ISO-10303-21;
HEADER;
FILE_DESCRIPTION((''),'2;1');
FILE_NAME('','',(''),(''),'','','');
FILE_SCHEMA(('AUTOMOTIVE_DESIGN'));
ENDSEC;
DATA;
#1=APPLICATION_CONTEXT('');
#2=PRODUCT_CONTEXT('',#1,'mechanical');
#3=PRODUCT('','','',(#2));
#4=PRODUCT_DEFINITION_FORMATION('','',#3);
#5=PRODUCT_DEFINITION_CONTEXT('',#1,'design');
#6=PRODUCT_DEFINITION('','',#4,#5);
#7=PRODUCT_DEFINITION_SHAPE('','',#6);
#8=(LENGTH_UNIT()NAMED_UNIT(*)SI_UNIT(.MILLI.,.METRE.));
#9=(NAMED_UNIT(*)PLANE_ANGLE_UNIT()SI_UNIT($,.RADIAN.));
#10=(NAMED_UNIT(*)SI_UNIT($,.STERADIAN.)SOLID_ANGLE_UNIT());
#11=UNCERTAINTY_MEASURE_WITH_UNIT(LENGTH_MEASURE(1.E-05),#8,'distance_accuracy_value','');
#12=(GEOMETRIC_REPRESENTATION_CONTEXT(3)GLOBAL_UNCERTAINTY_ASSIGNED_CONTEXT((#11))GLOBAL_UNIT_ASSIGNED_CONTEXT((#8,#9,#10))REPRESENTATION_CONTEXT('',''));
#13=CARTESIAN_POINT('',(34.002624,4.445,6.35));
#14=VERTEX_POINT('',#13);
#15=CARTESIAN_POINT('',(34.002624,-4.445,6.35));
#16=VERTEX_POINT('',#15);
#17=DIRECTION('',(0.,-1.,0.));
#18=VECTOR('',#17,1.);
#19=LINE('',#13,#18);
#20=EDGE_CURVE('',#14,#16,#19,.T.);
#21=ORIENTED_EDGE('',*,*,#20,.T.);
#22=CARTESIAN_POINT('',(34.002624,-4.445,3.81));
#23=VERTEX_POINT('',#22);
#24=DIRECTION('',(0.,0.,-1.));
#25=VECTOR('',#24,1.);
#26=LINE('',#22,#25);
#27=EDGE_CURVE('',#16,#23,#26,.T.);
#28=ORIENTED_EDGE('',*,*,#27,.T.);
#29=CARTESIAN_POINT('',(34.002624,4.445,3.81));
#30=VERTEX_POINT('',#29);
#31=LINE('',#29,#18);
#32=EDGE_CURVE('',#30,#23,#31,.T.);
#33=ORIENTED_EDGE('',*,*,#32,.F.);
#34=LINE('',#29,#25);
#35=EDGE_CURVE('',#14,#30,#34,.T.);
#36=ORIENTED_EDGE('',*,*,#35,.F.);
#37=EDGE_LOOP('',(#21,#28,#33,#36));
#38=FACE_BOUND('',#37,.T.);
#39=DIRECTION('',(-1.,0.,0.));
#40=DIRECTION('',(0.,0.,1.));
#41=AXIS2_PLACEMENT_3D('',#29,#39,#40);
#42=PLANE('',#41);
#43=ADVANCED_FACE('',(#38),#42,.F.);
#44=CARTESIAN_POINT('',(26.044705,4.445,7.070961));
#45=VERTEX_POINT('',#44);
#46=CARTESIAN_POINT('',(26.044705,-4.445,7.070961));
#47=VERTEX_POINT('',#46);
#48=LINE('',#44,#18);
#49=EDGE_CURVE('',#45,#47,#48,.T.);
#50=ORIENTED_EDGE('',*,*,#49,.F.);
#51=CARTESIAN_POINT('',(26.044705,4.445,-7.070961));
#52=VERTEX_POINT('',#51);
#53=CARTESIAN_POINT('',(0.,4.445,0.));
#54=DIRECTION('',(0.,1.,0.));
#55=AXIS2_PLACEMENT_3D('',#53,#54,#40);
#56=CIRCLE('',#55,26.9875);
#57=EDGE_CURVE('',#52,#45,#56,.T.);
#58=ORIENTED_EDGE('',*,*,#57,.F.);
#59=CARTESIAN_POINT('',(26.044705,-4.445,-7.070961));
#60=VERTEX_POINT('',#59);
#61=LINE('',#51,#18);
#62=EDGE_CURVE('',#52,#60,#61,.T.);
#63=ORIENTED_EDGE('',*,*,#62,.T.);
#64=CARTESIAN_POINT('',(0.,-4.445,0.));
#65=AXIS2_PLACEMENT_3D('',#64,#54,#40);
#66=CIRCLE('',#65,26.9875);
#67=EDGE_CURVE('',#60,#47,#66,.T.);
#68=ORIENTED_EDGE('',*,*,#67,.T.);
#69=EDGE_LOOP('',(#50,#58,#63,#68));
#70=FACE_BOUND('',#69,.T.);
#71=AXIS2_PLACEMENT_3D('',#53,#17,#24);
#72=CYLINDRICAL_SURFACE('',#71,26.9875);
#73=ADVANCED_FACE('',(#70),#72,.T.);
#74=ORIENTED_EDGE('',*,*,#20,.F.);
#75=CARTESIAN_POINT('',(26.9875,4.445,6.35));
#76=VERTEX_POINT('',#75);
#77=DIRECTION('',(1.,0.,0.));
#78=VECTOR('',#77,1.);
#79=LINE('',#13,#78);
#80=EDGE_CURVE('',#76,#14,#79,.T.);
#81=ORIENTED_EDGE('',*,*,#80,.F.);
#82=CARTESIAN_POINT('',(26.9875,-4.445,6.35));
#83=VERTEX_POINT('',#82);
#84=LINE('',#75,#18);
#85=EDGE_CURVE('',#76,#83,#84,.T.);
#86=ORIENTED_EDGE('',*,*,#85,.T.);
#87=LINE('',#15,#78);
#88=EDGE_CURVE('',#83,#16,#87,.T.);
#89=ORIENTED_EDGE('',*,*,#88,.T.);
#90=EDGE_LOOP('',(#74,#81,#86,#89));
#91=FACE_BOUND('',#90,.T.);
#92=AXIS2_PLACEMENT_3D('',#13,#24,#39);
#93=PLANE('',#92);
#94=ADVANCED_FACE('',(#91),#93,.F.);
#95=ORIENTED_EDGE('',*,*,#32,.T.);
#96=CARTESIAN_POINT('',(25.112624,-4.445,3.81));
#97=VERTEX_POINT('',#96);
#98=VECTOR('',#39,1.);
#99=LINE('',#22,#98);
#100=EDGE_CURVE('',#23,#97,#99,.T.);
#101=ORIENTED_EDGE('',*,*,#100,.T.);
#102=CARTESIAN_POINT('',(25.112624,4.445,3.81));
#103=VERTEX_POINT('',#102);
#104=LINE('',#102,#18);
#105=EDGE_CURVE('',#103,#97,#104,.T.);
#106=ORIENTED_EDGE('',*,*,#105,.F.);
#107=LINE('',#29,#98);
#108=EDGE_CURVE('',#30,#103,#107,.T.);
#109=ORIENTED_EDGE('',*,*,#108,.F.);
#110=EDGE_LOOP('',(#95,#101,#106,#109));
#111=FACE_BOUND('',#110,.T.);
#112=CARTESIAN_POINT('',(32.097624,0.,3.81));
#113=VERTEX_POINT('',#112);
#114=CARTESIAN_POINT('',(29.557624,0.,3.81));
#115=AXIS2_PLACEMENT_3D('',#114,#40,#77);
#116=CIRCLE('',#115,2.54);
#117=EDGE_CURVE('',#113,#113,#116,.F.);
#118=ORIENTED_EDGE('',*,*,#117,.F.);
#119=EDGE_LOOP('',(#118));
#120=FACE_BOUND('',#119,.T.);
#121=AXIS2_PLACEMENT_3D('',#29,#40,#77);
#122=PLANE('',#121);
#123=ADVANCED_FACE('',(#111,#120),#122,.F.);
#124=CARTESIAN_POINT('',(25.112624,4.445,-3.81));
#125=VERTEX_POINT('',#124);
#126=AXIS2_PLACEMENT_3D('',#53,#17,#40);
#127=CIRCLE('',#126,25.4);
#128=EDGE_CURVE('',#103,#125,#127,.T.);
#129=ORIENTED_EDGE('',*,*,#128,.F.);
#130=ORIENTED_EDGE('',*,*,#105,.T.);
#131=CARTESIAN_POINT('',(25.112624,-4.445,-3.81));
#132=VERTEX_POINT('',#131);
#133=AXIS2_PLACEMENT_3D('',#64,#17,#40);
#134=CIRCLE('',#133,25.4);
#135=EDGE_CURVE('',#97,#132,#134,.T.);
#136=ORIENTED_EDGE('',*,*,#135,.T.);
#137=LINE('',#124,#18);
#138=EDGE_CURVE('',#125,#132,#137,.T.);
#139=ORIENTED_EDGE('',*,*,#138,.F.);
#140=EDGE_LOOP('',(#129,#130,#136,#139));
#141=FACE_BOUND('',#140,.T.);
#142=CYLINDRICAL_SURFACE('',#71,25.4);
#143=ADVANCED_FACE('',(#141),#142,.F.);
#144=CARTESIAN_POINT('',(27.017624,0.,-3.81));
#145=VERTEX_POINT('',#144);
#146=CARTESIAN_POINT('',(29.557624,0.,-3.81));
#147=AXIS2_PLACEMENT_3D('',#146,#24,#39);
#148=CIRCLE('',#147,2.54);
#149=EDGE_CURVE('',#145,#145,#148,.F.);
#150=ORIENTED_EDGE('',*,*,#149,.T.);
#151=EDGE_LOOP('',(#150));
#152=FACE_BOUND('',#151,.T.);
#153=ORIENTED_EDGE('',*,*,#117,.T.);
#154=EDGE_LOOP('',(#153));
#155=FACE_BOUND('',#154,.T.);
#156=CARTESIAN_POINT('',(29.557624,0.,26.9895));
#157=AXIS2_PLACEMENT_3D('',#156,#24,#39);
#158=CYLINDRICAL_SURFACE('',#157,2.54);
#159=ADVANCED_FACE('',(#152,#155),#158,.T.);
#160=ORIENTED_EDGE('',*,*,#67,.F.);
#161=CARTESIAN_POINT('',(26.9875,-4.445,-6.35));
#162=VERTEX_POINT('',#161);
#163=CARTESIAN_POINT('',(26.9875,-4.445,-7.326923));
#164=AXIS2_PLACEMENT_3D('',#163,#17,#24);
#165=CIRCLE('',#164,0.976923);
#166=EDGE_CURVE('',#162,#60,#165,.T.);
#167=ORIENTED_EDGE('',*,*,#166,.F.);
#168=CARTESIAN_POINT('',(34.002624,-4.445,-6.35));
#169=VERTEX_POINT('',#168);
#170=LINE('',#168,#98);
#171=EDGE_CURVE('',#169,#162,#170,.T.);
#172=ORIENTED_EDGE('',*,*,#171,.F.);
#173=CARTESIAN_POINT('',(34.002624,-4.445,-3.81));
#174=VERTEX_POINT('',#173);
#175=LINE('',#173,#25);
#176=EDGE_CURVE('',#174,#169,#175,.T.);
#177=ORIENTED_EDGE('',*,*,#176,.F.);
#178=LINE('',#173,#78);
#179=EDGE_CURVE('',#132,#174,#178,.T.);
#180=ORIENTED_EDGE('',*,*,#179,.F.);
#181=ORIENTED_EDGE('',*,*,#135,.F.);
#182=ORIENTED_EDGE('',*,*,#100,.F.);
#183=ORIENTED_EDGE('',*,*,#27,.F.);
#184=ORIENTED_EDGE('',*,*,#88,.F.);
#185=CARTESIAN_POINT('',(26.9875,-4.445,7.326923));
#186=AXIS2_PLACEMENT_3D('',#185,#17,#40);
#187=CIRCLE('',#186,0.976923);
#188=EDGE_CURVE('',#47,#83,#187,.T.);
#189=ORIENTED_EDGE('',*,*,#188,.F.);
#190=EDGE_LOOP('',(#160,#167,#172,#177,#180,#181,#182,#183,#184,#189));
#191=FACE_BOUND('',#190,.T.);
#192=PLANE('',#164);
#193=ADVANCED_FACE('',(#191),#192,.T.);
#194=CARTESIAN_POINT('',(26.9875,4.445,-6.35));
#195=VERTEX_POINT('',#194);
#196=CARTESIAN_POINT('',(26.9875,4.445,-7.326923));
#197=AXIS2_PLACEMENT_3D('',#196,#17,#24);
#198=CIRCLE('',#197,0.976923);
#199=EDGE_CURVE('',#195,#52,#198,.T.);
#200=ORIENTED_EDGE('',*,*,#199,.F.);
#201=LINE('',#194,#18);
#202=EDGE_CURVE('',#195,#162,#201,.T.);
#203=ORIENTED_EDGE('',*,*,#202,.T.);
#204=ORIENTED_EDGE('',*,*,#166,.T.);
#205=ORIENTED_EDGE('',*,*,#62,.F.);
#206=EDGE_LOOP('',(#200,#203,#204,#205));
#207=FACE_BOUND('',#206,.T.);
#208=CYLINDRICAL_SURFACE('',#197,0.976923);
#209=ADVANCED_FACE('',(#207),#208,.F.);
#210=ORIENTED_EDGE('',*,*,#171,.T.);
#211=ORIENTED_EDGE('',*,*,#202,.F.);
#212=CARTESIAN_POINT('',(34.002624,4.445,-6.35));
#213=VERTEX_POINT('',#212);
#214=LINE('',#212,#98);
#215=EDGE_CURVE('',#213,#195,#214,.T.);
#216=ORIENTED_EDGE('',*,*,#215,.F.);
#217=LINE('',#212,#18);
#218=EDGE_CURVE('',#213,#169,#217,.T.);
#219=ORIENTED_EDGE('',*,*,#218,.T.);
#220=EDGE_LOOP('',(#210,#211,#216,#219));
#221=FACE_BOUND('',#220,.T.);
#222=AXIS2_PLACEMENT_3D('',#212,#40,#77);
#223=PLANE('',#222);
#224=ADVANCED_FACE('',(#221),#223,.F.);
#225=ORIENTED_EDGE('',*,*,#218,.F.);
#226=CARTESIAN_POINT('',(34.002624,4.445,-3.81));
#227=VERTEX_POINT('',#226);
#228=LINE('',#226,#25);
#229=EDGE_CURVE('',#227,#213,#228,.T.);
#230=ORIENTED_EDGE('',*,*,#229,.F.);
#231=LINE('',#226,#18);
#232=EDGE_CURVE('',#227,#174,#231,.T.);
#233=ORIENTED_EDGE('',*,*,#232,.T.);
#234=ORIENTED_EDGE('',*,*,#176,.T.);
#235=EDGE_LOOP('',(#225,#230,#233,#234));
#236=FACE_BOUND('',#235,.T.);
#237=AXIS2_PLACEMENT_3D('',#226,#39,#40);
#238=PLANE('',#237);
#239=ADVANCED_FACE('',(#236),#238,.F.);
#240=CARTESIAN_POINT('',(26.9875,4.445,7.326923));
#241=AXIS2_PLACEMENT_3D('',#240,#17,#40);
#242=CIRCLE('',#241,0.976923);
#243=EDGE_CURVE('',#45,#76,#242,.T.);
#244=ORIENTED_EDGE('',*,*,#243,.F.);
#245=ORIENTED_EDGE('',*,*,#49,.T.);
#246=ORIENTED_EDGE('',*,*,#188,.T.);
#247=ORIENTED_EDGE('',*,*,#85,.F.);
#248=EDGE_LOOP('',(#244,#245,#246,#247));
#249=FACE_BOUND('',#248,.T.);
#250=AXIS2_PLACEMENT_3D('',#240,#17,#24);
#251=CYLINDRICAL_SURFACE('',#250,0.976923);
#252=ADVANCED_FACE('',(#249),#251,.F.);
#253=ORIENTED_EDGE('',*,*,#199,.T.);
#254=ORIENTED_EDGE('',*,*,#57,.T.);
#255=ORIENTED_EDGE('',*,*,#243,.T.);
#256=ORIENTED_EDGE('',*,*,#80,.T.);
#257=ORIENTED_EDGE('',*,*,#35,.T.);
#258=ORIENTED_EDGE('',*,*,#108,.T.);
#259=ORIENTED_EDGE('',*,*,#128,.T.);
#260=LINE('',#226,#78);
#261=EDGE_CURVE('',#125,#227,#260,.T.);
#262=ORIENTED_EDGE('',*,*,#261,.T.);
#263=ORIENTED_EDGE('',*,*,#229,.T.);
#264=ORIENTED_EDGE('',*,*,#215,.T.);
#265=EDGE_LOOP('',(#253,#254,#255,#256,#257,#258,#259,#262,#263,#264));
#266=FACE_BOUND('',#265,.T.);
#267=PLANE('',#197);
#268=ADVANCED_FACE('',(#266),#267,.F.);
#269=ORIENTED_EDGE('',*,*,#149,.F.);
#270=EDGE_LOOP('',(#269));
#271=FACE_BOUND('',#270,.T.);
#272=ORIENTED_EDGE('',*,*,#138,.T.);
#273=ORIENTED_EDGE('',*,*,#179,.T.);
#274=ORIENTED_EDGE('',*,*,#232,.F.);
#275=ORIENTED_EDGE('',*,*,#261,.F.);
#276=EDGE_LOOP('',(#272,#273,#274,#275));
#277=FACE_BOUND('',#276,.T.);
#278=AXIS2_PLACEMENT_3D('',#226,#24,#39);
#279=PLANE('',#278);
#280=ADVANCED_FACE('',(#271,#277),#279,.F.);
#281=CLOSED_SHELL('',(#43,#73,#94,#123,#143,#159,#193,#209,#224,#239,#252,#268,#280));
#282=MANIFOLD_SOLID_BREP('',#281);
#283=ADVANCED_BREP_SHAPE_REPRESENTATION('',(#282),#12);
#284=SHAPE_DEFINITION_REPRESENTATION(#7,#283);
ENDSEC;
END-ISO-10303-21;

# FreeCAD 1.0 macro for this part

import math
import FreeCAD as App
import Part
import Sketcher

V = App.Vector
Q = App.Units.Quantity

doc = App.newDocument("Part")
body = doc.addObject("PartDesign::Body", "Body")

# Sketch on XZ plane
sketch1 = doc.addObject("Sketcher::SketchObject", "Sketch")
body.addObject(sketch1)
sketch1.AttachmentSupport = (doc.XZ_Plane, [""])
sketch1.MapMode = "FlatFace"
sketch1.addGeometry(Part.LineSegment(V(25.1, -3.8, 0), V(34, -3.8, 0)), False)
sketch1.addGeometry(Part.LineSegment(V(34, -3.8, 0), V(34, -6.3, 0)), False)
sketch1.addGeometry(Part.LineSegment(V(34, -6.3, 0), V(27, -6.3, 0)), False)
sketch1.addGeometry(Part.ArcOfCircle(Part.Circle(V(27, -7.3, 0), V(0, 0, 1), 1), math.radians(90), math.radians(165)), False)
sketch1.addGeometry(Part.ArcOfCircle(Part.Circle(V(0, 0, 0), V(0, 0, 1), 27), math.radians(15), math.radians(345)), False)
sketch1.addGeometry(Part.ArcOfCircle(Part.Circle(V(27, 7.3, 0), V(0, 0, 1), 1), math.radians(-165), math.radians(-90)), False)
sketch1.addGeometry(Part.LineSegment(V(27, 6.3, 0), V(34, 6.3, 0)), False)
sketch1.addGeometry(Part.LineSegment(V(34, 6.3, 0), V(34, 3.8, 0)), False)
sketch1.addGeometry(Part.LineSegment(V(34, 3.8, 0), V(25.1, 3.8, 0)), False)
sketch1.addGeometry(Part.ArcOfCircle(Part.Circle(V(0, 0, 0), V(0, 0, 1), 25.4), math.radians(9), math.radians(351)), False)
sketch1.addConstraint(Sketcher.Constraint("Coincident", 0, 2, 1, 1))
sketch1.addConstraint(Sketcher.Constraint("Coincident", 1, 2, 2, 1))
sketch1.addConstraint(Sketcher.Constraint("Tangent", 2, 2, 3, 1))
sketch1.addConstraint(Sketcher.Constraint("Tangent", 3, 2, 4, 2))
sketch1.addConstraint(Sketcher.Constraint("Tangent", 4, 1, 5, 1))
sketch1.addConstraint(Sketcher.Constraint("Tangent", 5, 2, 6, 1))
sketch1.addConstraint(Sketcher.Constraint("Coincident", 6, 2, 7, 1))
sketch1.addConstraint(Sketcher.Constraint("Coincident", 7, 2, 8, 1))
sketch1.addConstraint(Sketcher.Constraint("Coincident", 8, 2, 9, 1))
sketch1.addConstraint(Sketcher.Constraint("Coincident", 9, 2, 0, 1))
sketch1.addConstraint(Sketcher.Constraint("Horizontal", 0))
sketch1.addConstraint(Sketcher.Constraint("Vertical", 1))
sketch1.addConstraint(Sketcher.Constraint("Horizontal", 2))
sketch1.addConstraint(Sketcher.Constraint("Horizontal", 6))
sketch1.addConstraint(Sketcher.Constraint("Vertical", 7))
sketch1.addConstraint(Sketcher.Constraint("Horizontal", 8))
sketch1.addConstraint(Sketcher.Constraint("Coincident", 4, 3, -1, 1))
sketch1.addConstraint(Sketcher.Constraint("Coincident", 9, 3, -1, 1))
sketch1.addConstraint(Sketcher.Constraint("Equal", 3, 5))
sketch1.addConstraint(Sketcher.Constraint("Symmetric", 1, 2, 6, 2, -1))
sketch1.addConstraint(Sketcher.Constraint("Vertical", 8, 2, 9, 2))
sketch1.addConstraint(Sketcher.Constraint("Radius", 9, Q("1 in")))
sketch1.addConstraint(Sketcher.Constraint("DistanceY", 1, 2, 1, 1, Q("0.1 in")))
sketch1.addConstraint(Sketcher.Constraint("Radius", 4, Q("1.0625 in")))
sketch1.addConstraint(Sketcher.Constraint("DistanceX", 0, 1, 0, 2, Q("0.35 in")))
sketch1.addConstraint(Sketcher.Constraint("DistanceY", 0, 2, 5, 2, Q("0.4 in")))
sketch1.addConstraint(Sketcher.Constraint("DistanceX", -1, 1, 3, 3, Q("1.0625 in")))
pad1 = doc.addObject("PartDesign::Pad", "Pad")
body.addObject(pad1)
pad1.Profile = sketch1
pad1.Length = Q("0.35 in")
pad1.Midplane = True

# Sketch on XY plane
sketch2 = doc.addObject("Sketcher::SketchObject", "Sketch001")
body.addObject(sketch2)
sketch2.AttachmentSupport = (doc.XY_Plane, [""])
sketch2.MapMode = "FlatFace"
sketch2.AttachmentOffset = App.Placement(V(0, 0, -0.15 * 25.4), App.Rotation())
sketch2.addGeometry(Part.Circle(V(29.6, 0, 0), V(0, 0, 1), 2.5), False)
sketch2.addConstraint(Sketcher.Constraint("PointOnObject", 0, 3, -1))
sketch2.addConstraint(Sketcher.Constraint("Diameter", 0, Q("0.2 in")))
sketch2.addConstraint(Sketcher.Constraint("DistanceX", -1, 1, 0, 3, Q("29.557624 mm")))
pad2 = doc.addObject("PartDesign::Pad", "Pad001")
body.addObject(pad2)
pad2.Profile = sketch2
pad2.Type = "UpToFirst"

doc.recompute()
